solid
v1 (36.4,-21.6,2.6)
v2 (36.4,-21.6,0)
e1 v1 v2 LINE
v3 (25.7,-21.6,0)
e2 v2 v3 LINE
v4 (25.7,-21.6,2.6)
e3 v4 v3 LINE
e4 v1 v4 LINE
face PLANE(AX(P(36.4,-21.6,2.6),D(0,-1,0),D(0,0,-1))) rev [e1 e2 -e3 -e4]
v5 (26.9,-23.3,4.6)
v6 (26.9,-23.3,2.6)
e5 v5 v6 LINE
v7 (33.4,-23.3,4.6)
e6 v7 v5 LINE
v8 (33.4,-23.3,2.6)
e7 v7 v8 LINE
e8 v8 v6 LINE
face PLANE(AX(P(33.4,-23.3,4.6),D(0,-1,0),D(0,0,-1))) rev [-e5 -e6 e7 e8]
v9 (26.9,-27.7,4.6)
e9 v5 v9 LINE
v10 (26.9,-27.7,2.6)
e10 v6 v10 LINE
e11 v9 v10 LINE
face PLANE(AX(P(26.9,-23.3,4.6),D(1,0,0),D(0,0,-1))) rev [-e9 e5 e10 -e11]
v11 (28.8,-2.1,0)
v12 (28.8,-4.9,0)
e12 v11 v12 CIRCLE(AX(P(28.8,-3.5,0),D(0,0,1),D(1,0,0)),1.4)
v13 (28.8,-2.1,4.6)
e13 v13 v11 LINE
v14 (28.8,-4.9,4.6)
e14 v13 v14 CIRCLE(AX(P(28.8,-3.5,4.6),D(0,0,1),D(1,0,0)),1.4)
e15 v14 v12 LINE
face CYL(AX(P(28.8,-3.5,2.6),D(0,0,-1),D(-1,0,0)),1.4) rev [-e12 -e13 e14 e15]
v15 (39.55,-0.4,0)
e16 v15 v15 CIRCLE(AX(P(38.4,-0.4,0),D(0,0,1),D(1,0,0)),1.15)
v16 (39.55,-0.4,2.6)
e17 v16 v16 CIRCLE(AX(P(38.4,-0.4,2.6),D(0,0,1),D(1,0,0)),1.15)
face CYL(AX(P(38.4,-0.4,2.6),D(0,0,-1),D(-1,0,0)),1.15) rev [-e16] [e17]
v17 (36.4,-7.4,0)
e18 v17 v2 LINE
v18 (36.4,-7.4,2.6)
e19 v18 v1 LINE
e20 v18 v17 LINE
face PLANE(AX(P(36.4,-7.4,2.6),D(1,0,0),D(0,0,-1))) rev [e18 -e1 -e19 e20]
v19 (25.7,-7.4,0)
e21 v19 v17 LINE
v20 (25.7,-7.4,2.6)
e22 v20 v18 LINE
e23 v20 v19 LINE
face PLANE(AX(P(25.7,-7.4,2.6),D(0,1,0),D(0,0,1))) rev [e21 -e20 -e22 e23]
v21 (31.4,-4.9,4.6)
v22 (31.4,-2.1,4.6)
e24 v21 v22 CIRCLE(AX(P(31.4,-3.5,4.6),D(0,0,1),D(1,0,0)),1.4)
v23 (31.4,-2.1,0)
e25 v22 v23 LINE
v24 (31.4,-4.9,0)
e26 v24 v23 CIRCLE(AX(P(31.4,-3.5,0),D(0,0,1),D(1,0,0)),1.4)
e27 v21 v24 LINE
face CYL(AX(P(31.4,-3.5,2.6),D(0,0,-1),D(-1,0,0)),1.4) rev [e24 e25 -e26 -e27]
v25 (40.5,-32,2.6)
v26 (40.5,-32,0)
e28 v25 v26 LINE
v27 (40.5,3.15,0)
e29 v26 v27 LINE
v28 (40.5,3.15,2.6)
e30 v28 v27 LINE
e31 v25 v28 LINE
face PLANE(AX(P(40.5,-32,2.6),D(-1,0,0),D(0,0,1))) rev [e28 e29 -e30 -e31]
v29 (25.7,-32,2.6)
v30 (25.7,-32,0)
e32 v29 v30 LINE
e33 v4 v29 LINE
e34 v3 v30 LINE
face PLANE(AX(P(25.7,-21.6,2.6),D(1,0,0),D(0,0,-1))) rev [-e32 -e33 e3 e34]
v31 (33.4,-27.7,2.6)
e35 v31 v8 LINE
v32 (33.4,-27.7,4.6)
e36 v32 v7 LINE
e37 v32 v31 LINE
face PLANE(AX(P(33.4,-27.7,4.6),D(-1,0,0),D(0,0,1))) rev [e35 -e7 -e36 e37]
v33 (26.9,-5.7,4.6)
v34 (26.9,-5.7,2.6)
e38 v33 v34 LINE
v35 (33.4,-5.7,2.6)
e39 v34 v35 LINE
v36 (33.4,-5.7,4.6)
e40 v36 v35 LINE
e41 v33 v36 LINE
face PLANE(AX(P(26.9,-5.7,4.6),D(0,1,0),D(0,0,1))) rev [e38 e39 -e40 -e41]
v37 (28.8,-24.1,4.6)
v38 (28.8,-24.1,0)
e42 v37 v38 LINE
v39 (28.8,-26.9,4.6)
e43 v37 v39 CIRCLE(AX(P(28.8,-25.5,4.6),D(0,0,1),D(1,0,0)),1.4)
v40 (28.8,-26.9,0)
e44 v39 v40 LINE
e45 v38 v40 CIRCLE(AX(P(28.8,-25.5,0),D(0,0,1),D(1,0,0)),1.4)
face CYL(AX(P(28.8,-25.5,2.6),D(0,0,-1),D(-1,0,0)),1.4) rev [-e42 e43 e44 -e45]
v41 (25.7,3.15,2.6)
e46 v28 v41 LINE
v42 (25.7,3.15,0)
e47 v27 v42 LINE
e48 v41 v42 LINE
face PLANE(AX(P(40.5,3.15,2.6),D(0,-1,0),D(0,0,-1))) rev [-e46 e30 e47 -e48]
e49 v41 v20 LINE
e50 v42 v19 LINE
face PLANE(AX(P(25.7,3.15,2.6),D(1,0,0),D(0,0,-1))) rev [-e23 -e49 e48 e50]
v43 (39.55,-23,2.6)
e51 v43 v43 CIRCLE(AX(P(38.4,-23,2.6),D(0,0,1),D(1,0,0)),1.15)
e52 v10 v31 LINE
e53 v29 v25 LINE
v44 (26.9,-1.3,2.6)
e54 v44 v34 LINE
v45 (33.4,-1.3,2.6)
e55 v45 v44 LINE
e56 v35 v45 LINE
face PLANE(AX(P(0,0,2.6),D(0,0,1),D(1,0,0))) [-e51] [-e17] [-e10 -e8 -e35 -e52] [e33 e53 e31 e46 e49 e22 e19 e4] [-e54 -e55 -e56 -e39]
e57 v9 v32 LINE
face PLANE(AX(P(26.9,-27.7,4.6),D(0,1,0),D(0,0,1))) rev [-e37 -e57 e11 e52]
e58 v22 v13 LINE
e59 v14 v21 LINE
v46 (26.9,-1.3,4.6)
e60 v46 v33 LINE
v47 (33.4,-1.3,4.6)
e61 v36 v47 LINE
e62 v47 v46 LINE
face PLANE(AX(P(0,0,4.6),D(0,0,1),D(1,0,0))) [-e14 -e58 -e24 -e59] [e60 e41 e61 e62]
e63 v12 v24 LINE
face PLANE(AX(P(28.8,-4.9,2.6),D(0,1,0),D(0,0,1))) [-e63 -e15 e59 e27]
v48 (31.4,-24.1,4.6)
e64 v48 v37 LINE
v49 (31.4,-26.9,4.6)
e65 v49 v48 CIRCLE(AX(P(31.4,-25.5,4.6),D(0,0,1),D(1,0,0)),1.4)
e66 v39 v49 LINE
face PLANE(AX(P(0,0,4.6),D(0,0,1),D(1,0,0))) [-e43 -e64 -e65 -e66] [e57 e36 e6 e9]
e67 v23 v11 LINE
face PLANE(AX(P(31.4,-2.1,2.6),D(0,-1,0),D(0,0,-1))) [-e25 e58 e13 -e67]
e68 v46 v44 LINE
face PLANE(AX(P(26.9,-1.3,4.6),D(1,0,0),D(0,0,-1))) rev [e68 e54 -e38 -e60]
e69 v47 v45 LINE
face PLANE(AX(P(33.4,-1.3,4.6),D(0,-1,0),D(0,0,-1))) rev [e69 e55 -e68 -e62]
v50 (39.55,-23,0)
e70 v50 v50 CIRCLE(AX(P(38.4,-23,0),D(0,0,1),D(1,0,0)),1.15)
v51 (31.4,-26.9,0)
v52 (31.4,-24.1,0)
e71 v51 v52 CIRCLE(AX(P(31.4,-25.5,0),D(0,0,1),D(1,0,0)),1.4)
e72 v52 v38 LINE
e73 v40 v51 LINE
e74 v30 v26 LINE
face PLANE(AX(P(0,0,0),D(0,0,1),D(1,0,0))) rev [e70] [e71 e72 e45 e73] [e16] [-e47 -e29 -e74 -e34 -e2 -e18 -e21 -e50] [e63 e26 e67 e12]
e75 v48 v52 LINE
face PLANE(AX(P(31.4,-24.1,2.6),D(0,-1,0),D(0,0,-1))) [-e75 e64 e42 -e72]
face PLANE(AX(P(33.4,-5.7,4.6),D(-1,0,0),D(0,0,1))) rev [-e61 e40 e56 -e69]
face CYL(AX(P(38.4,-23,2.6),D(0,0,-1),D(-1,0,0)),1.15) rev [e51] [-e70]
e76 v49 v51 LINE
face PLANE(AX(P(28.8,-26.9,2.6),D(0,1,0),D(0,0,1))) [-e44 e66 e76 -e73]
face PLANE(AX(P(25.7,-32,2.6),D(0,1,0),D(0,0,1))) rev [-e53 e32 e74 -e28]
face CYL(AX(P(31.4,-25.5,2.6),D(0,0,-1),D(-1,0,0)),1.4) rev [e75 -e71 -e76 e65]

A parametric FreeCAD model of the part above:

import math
import FreeCAD as App
import Part
import Sketcher

V = App.Vector

doc = App.newDocument("Part")
body = doc.addObject("PartDesign::Body", "Body")

# Sketch on XY plane
sketch1 = doc.addObject("Sketcher::SketchObject", "Sketch")
body.addObject(sketch1)
sketch1.AttachmentSupport = (doc.XY_Plane, [""])
sketch1.MapMode = "FlatFace"
sketch1.addGeometry(Part.LineSegment(V(25.7, -32, 0), V(40.5, -32, 0)), False)
sketch1.addGeometry(Part.LineSegment(V(40.5, -32, 0), V(40.5, 3.15, 0)), False)
sketch1.addGeometry(Part.LineSegment(V(40.5, 3.15, 0), V(25.7, 3.15, 0)), False)
sketch1.addGeometry(Part.LineSegment(V(25.7, 3.15, 0), V(25.7, -7.4, 0)), False)
sketch1.addGeometry(Part.LineSegment(V(25.7, -7.4, 0), V(36.4, -7.4, 0)), False)
sketch1.addGeometry(Part.LineSegment(V(36.4, -7.4, 0), V(36.4, -21.6, 0)), False)
sketch1.addGeometry(Part.LineSegment(V(36.4, -21.6, 0), V(25.7, -21.6, 0)), False)
sketch1.addGeometry(Part.LineSegment(V(25.7, -21.6, 0), V(25.7, -32, 0)), False)
sketch1.addGeometry(Part.LineSegment(V(31.4, -26.9, 0), V(28.8, -26.9, 0)), False)
sketch1.addGeometry(Part.ArcOfCircle(Part.Circle(V(28.8, -25.5, 0), V(0, 0, 1), 1.4), math.radians(90), math.radians(270)), False)
sketch1.addGeometry(Part.LineSegment(V(28.8, -24.1, 0), V(31.4, -24.1, 0)), False)
sketch1.addGeometry(Part.ArcOfCircle(Part.Circle(V(31.4, -25.5, 0), V(0, 0, 1), 1.4), math.radians(-90), math.radians(90)), False)
sketch1.addGeometry(Part.Circle(V(38.4, -23, 0), V(0, 0, 1), 1.15), False)
sketch1.addGeometry(Part.LineSegment(V(31.4, -4.9, 0), V(28.8, -4.9, 0)), False)
sketch1.addGeometry(Part.ArcOfCircle(Part.Circle(V(28.8, -3.5, 0), V(0, 0, 1), 1.4), math.radians(90), math.radians(270)), False)
sketch1.addGeometry(Part.LineSegment(V(28.8, -2.1, 0), V(31.4, -2.1, 0)), False)
sketch1.addGeometry(Part.ArcOfCircle(Part.Circle(V(31.4, -3.5, 0), V(0, 0, 1), 1.4), math.radians(-90), math.radians(90)), False)
sketch1.addGeometry(Part.Circle(V(38.4, -0.4, 0), V(0, 0, 1), 1.15), False)
sketch1.addConstraint(Sketcher.Constraint("Coincident", 0, 2, 1, 1))
sketch1.addConstraint(Sketcher.Constraint("Coincident", 1, 2, 2, 1))
sketch1.addConstraint(Sketcher.Constraint("Coincident", 2, 2, 3, 1))
sketch1.addConstraint(Sketcher.Constraint("Coincident", 3, 2, 4, 1))
sketch1.addConstraint(Sketcher.Constraint("Coincident", 4, 2, 5, 1))
sketch1.addConstraint(Sketcher.Constraint("Coincident", 5, 2, 6, 1))
sketch1.addConstraint(Sketcher.Constraint("Coincident", 6, 2, 7, 1))
sketch1.addConstraint(Sketcher.Constraint("Coincident", 7, 2, 0, 1))
sketch1.addConstraint(Sketcher.Constraint("Tangent", 8, 2, 9, 2))
sketch1.addConstraint(Sketcher.Constraint("Tangent", 9, 1, 10, 1))
sketch1.addConstraint(Sketcher.Constraint("Tangent", 10, 2, 11, 2))
sketch1.addConstraint(Sketcher.Constraint("Tangent", 11, 1, 8, 1))
sketch1.addConstraint(Sketcher.Constraint("Tangent", 13, 2, 14, 2))
sketch1.addConstraint(Sketcher.Constraint("Tangent", 14, 1, 15, 1))
sketch1.addConstraint(Sketcher.Constraint("Tangent", 15, 2, 16, 2))
sketch1.addConstraint(Sketcher.Constraint("Tangent", 16, 1, 13, 1))
sketch1.addConstraint(Sketcher.Constraint("Horizontal", 0))
sketch1.addConstraint(Sketcher.Constraint("Vertical", 1))
sketch1.addConstraint(Sketcher.Constraint("Horizontal", 2))
sketch1.addConstraint(Sketcher.Constraint("Vertical", 3))
sketch1.addConstraint(Sketcher.Constraint("Horizontal", 4))
sketch1.addConstraint(Sketcher.Constraint("Vertical", 5))
sketch1.addConstraint(Sketcher.Constraint("Horizontal", 6))
sketch1.addConstraint(Sketcher.Constraint("Vertical", 7))
sketch1.addConstraint(Sketcher.Constraint("Horizontal", 8))
sketch1.addConstraint(Sketcher.Constraint("Horizontal", 10))
sketch1.addConstraint(Sketcher.Constraint("Horizontal", 13))
sketch1.addConstraint(Sketcher.Constraint("Horizontal", 15))
sketch1.addConstraint(Sketcher.Constraint("Equal", 11, 14))
sketch1.addConstraint(Sketcher.Constraint("Equal", 12, 17))
sketch1.addConstraint(Sketcher.Constraint("Vertical", 9, 3, 14, 3))
sketch1.addConstraint(Sketcher.Constraint("Vertical", 11, 3, 16, 3))
sketch1.addConstraint(Sketcher.Constraint("Vertical", 12, 3, 17, 3))
sketch1.addConstraint(Sketcher.Constraint("Vertical", 3, 2, 6, 2))
sketch1.addConstraint(Sketcher.Constraint("Diameter", 12, 2.3))
sketch1.addConstraint(Sketcher.Constraint("Radius", 9, 1.4))
sketch1.addConstraint(Sketcher.Constraint("DistanceX", 0, 1, 0, 2, 14.8))
sketch1.addConstraint(Sketcher.Constraint("DistanceX", 4, 1, 4, 2, 10.7))
sketch1.addConstraint(Sketcher.Constraint("DistanceX", 8, 2, 8, 1, 2.6))
sketch1.addConstraint(Sketcher.Constraint("DistanceY", 5, 2, 5, 1, 14.2))
sketch1.addConstraint(Sketcher.Constraint("DistanceY", 7, 2, 7, 1, 10.4))
sketch1.addConstraint(Sketcher.Constraint("DistanceY", 12, 3, -1, 1, 23.0))
sketch1.addConstraint(Sketcher.Constraint("DistanceY", 0, 2, -1, 1, 32.0))
sketch1.addConstraint(Sketcher.Constraint("DistanceX", 11, 3, 12, 3, 7.0))
sketch1.addConstraint(Sketcher.Constraint("DistanceY", 9, 3, 14, 3, 22.0))
sketch1.addConstraint(Sketcher.Constraint("DistanceY", 3, 2, 17, 3, 7.0))
sketch1.addConstraint(Sketcher.Constraint("DistanceX", 16, 3, 4, 2, 5.0))
sketch1.addConstraint(Sketcher.Constraint("DistanceY", 1, 1, 1, 2, 35.15))
sketch1.addConstraint(Sketcher.Constraint("DistanceX", -1, 1, 9, 3, 28.8))
sketch1.addConstraint(Sketcher.Constraint("DistanceY", 9, 3, -1, 1, 25.5))
pad1 = doc.addObject("PartDesign::Pad", "Pad")
body.addObject(pad1)
pad1.Profile = sketch1
pad1.Length = 2.6

# Sketch on XY plane
sketch2 = doc.addObject("Sketcher::SketchObject", "Sketch001")
body.addObject(sketch2)
sketch2.AttachmentSupport = (doc.XY_Plane, [""])
sketch2.MapMode = "FlatFace"
sketch2.AttachmentOffset = App.Placement(V(0, 0, 2.6), App.Rotation())
sketch2.addGeometry(Part.LineSegment(V(26.9, -23.3, 0), V(26.9, -27.7, 0)), False)
sketch2.addGeometry(Part.LineSegment(V(26.9, -27.7, 0), V(33.4, -27.7, 0)), False)
sketch2.addGeometry(Part.LineSegment(V(33.4, -27.7, 0), V(33.4, -23.3, 0)), False)
sketch2.addGeometry(Part.LineSegment(V(33.4, -23.3, 0), V(26.9, -23.3, 0)), False)
sketch2.addGeometry(Part.LineSegment(V(31.4, -26.9, 0), V(28.8, -26.9, 0)), False)
sketch2.addGeometry(Part.ArcOfCircle(Part.Circle(V(28.8, -25.5, 0), V(0, 0, 1), 1.4), math.radians(90), math.radians(270)), False)
sketch2.addGeometry(Part.LineSegment(V(28.8, -24.1, 0), V(31.4, -24.1, 0)), False)
sketch2.addGeometry(Part.ArcOfCircle(Part.Circle(V(31.4, -25.5, 0), V(0, 0, 1), 1.4), math.radians(-90), math.radians(90)), False)
sketch2.addGeometry(Part.LineSegment(V(26.9, -1.3, 0), V(26.9, -5.7, 0)), False)
sketch2.addGeometry(Part.LineSegment(V(26.9, -5.7, 0), V(33.4, -5.7, 0)), False)
sketch2.addGeometry(Part.LineSegment(V(33.4, -5.7, 0), V(33.4, -1.3, 0)), False)
sketch2.addGeometry(Part.LineSegment(V(33.4, -1.3, 0), V(26.9, -1.3, 0)), False)
sketch2.addGeometry(Part.LineSegment(V(31.4, -4.9, 0), V(28.8, -4.9, 0)), False)
sketch2.addGeometry(Part.ArcOfCircle(Part.Circle(V(28.8, -3.5, 0), V(0, 0, 1), 1.4), math.radians(90), math.radians(270)), False)
sketch2.addGeometry(Part.LineSegment(V(28.8, -2.1, 0), V(31.4, -2.1, 0)), False)
sketch2.addGeometry(Part.ArcOfCircle(Part.Circle(V(31.4, -3.5, 0), V(0, 0, 1), 1.4), math.radians(-90), math.radians(90)), False)
sketch2.addConstraint(Sketcher.Constraint("Coincident", 0, 2, 1, 1))
sketch2.addConstraint(Sketcher.Constraint("Coincident", 1, 2, 2, 1))
sketch2.addConstraint(Sketcher.Constraint("Coincident", 2, 2, 3, 1))
sketch2.addConstraint(Sketcher.Constraint("Coincident", 3, 2, 0, 1))
sketch2.addConstraint(Sketcher.Constraint("Tangent", 4, 2, 5, 2))
sketch2.addConstraint(Sketcher.Constraint("Tangent", 5, 1, 6, 1))
sketch2.addConstraint(Sketcher.Constraint("Tangent", 6, 2, 7, 2))
sketch2.addConstraint(Sketcher.Constraint("Tangent", 7, 1, 4, 1))
sketch2.addConstraint(Sketcher.Constraint("Coincident", 8, 2, 9, 1))
sketch2.addConstraint(Sketcher.Constraint("Coincident", 9, 2, 10, 1))
sketch2.addConstraint(Sketcher.Constraint("Coincident", 10, 2, 11, 1))
sketch2.addConstraint(Sketcher.Constraint("Coincident", 11, 2, 8, 1))
sketch2.addConstraint(Sketcher.Constraint("Tangent", 12, 2, 13, 2))
sketch2.addConstraint(Sketcher.Constraint("Tangent", 13, 1, 14, 1))
sketch2.addConstraint(Sketcher.Constraint("Tangent", 14, 2, 15, 2))
sketch2.addConstraint(Sketcher.Constraint("Tangent", 15, 1, 12, 1))
sketch2.addConstraint(Sketcher.Constraint("Vertical", 0))
sketch2.addConstraint(Sketcher.Constraint("Horizontal", 1))
sketch2.addConstraint(Sketcher.Constraint("Vertical", 2))
sketch2.addConstraint(Sketcher.Constraint("Horizontal", 3))
sketch2.addConstraint(Sketcher.Constraint("Horizontal", 4))
sketch2.addConstraint(Sketcher.Constraint("Horizontal", 6))
sketch2.addConstraint(Sketcher.Constraint("Vertical", 8))
sketch2.addConstraint(Sketcher.Constraint("Horizontal", 9))
sketch2.addConstraint(Sketcher.Constraint("Vertical", 10))
sketch2.addConstraint(Sketcher.Constraint("Horizontal", 11))
sketch2.addConstraint(Sketcher.Constraint("Horizontal", 12))
sketch2.addConstraint(Sketcher.Constraint("Horizontal", 14))
sketch2.addConstraint(Sketcher.Constraint("Equal", 7, 13))
sketch2.addConstraint(Sketcher.Constraint("Vertical", 5, 3, 13, 3))
sketch2.addConstraint(Sketcher.Constraint("Vertical", 7, 3, 15, 3))
sketch2.addConstraint(Sketcher.Constraint("Vertical", 3, 2, 8, 2))
sketch2.addConstraint(Sketcher.Constraint("Vertical", 2, 2, 9, 2))
sketch2.addConstraint(Sketcher.Constraint("Equal", 2, 8))
sketch2.addConstraint(Sketcher.Constraint("Radius", 5, 1.4))
sketch2.addConstraint(Sketcher.Constraint("DistanceX", 1, 1, 1, 2, 6.5))
sketch2.addConstraint(Sketcher.Constraint("DistanceX", 4, 2, 4, 1, 2.6))
sketch2.addConstraint(Sketcher.Constraint("DistanceY", 0, 2, 0, 1, 4.4))
sketch2.addConstraint(Sketcher.Constraint("DistanceY", 5, 3, 13, 3, 22.0))
sketch2.addConstraint(Sketcher.Constraint("DistanceX", 7, 3, 1, 2, 2.0))
sketch2.addConstraint(Sketcher.Constraint("DistanceY", 2, 2, 10, 2, 22.0))
sketch2.addConstraint(Sketcher.Constraint("DistanceX", -1, 1, 5, 3, 28.8))
sketch2.addConstraint(Sketcher.Constraint("DistanceY", 5, 3, -1, 1, 25.5))
sketch2.addConstraint(Sketcher.Constraint("DistanceY", 0, 2, -1, 1, 27.7))
pad2 = doc.addObject("PartDesign::Pad", "Pad001")
body.addObject(pad2)
pad2.Profile = sketch2
pad2.Length = 2

doc.recompute()
